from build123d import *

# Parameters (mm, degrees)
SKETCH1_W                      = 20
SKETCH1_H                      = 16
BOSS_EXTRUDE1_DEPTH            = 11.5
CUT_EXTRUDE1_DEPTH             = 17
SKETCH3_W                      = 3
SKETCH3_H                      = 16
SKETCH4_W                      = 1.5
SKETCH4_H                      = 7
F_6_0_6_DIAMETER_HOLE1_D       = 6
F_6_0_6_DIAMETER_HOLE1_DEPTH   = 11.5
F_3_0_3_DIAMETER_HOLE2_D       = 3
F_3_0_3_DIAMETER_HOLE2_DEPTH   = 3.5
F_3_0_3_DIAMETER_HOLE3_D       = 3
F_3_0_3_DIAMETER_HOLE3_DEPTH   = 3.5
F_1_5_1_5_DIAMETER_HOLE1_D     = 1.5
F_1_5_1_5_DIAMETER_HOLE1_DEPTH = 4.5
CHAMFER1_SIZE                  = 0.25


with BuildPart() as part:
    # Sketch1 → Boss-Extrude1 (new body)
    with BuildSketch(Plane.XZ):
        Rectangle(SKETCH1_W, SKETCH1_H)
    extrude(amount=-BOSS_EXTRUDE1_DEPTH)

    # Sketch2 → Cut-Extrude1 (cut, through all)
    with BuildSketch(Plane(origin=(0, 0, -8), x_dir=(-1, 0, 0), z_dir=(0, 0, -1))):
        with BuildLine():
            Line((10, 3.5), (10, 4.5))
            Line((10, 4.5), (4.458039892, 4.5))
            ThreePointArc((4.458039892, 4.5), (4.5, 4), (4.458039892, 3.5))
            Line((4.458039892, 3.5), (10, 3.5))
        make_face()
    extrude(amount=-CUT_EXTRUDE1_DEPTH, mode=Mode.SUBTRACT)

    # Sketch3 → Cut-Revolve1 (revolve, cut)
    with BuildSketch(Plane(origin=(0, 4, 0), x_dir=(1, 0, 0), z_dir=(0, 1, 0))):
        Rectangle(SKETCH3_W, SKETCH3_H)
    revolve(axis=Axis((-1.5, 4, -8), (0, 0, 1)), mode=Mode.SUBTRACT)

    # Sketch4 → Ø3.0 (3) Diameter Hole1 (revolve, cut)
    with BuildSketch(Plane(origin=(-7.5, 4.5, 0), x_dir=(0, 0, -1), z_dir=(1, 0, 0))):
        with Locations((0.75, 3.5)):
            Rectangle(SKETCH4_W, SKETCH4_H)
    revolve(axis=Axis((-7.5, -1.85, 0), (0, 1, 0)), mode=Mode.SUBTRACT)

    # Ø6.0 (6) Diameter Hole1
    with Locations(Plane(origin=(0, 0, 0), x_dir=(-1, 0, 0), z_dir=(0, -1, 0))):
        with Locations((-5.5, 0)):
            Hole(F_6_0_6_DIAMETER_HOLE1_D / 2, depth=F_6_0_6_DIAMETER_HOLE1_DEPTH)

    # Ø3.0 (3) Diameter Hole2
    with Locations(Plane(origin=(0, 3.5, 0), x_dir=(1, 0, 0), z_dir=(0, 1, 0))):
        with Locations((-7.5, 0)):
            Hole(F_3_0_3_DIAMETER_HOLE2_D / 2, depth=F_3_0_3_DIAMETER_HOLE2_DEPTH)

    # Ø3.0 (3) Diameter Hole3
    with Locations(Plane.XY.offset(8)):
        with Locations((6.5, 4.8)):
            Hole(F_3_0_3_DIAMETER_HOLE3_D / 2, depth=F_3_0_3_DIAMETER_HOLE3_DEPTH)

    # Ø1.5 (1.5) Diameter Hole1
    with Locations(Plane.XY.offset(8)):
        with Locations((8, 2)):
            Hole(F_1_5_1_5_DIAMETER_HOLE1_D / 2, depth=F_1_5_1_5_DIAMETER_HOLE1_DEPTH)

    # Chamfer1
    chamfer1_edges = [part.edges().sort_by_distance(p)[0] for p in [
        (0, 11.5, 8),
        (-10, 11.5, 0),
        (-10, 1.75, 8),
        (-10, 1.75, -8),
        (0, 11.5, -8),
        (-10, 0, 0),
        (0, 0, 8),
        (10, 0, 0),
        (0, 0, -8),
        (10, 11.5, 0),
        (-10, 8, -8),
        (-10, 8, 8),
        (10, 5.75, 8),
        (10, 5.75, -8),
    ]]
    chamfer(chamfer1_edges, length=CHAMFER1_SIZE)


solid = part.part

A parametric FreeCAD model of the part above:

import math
import FreeCAD as App
import Part
import Sketcher

V = App.Vector
Q = App.Units.Quantity


def edges_at(feature, points):
    """Names of the edges that pass closest to the given points."""
    edges = feature.Shape.Edges
    near = lambda p: min(range(len(edges)), key=lambda i: edges[i].distToShape(Part.Vertex(*p))[0])
    return sorted({f"Edge{near(p) + 1}" for p in points})


def add_polygon(sketch, points):
    """Adds a closed chain of lines whose ends are joined by coincident constraints."""
    first, n = sketch.GeometryCount, len(points)
    for a, b in zip(points, points[1:] + points[:1]):
        sketch.addGeometry(Part.LineSegment(App.Vector(*a, 0), App.Vector(*b, 0)), False)
    for i in range(n):
        sketch.addConstraint(Sketcher.Constraint("Coincident", first + i, 2, first + (i + 1) % n, 1))

doc = App.newDocument("Part")
body = doc.addObject("PartDesign::Body", "Body")

sketch1 = doc.addObject("Sketcher::SketchObject", "Sketch")
body.addObject(sketch1)
sketch1.AttachmentSupport = (doc.XZ_Plane, [""])
sketch1.MapMode = "FlatFace"
add_polygon(sketch1, [(-10, 8), (-10, -8), (10, -8), (10, 8)])
sketch1.addConstraint([
    Sketcher.Constraint("Vertical", 0),
    Sketcher.Constraint("Horizontal", 1),
    Sketcher.Constraint("Vertical", 2),
    Sketcher.Constraint("Horizontal", 3),
    Sketcher.Constraint("Symmetric", 0, 2, 2, 2, -1, 1),
    Sketcher.Constraint("DistanceX", 1, 1, 1, 2, Q("20 mm")),
    Sketcher.Constraint("DistanceY", 0, 2, 0, 1, Q("16 mm")),
])
pad1 = doc.addObject("PartDesign::Pad", "Pad")
body.addObject(pad1)
pad1.Profile = sketch1
pad1.Length = 11.5
pad1.Reversed = True

sketch2 = doc.addObject("Sketcher::SketchObject", "Sketch001")
body.addObject(sketch2)
sketch2.AttachmentSupport = (doc.XY_Plane, [""])
sketch2.MapMode = "FlatFace"
sketch2.AttachmentOffset = App.Placement(V(0, 0, -8), App.Rotation())
sketch2.addGeometry([
    Part.LineSegment(V(-10, 3.5, 0), V(-10, 4.5, 0)),
    Part.LineSegment(V(-10, 4.5, 0), V(-4.45804, 4.5, 0)),
    Part.ArcOfCircle(Part.Circle(V(-1.5, 4, 0), V(0, 0, 1), 3), math.radians(170.405932), math.radians(189.594068)),
    Part.LineSegment(V(-4.45804, 3.5, 0), V(-10, 3.5, 0)),
], False)
sketch2.addConstraint([
    Sketcher.Constraint("Coincident", 0, 2, 1, 1),
    Sketcher.Constraint("Coincident", 1, 2, 2, 1),
    Sketcher.Constraint("Coincident", 2, 2, 3, 1),
    Sketcher.Constraint("Coincident", 3, 2, 0, 1),
    Sketcher.Constraint("Vertical", 0),
    Sketcher.Constraint("Horizontal", 1),
    Sketcher.Constraint("Horizontal", 3),
    Sketcher.Constraint("Vertical", 1, 2, 2, 2),
    Sketcher.Constraint("Radius", 2, Q("3 mm")),
    Sketcher.Constraint("DistanceY", 0, 1, 0, 2, Q("1 mm")),
    Sketcher.Constraint("DistanceY", -1, 1, 2, 3, Q("4 mm")),
    Sketcher.Constraint("DistanceX", 0, 2, -1, 1, Q("10 mm")),
    Sketcher.Constraint("DistanceX", 2, 3, -1, 1, Q("1.5 mm")),
])
pocket1 = doc.addObject("PartDesign::Pocket", "Pocket")
body.addObject(pocket1)
pocket1.Profile = sketch2
pocket1.Type = "ThroughAll"
pocket1.Reversed = True

sketch3 = doc.addObject("Sketcher::SketchObject", "Sketch002")
body.addObject(sketch3)
sketch3.AttachmentSupport = (doc.XZ_Plane, [""])
sketch3.MapMode = "FlatFace"
sketch3.AttachmentOffset = App.Placement(V(0, 0, -4), App.Rotation())
add_polygon(sketch3, [(-1.5, -8), (-1.5, 8), (1.5, 8), (1.5, -8)])
sketch3.addGeometry(Part.LineSegment(V(-1.5, -8, 0), V(-1.5, 8, 0)), True)
sketch3.addConstraint([
    Sketcher.Constraint("Vertical", 0),
    Sketcher.Constraint("Horizontal", 1),
    Sketcher.Constraint("Vertical", 2),
    Sketcher.Constraint("Horizontal", 3),
    Sketcher.Constraint("Vertical", 4),
    Sketcher.Constraint("Coincident", 4, 1, 3, 2),
    Sketcher.Constraint("Symmetric", 0, 2, 2, 2, -1, 1),
    Sketcher.Constraint("Horizontal", 1, 2, 4, 2),
    Sketcher.Constraint("DistanceX", 1, 1, 1, 2, Q("3 mm")),
    Sketcher.Constraint("DistanceY", 0, 1, 0, 2, Q("16 mm")),
])
groove = doc.addObject("PartDesign::Groove", "Groove")
body.addObject(groove)
groove.Profile = sketch3
groove.ReferenceAxis = (sketch3, ["Axis0"])
groove.Angle = 360

sketch4 = doc.addObject("Sketcher::SketchObject", "Sketch003")
body.addObject(sketch4)
sketch4.AttachmentSupport = (doc.YZ_Plane, [""])
sketch4.MapMode = "FlatFace"
sketch4.AttachmentOffset = App.Placement(V(0, 0, -7.5), App.Rotation())
add_polygon(sketch4, [(11.5, 0), (4.5, 0), (4.5, -1.5), (11.5, -1.5)])
sketch4.addConstraint([
    Sketcher.Constraint("Horizontal", 0),
    Sketcher.Constraint("Vertical", 1),
    Sketcher.Constraint("Horizontal", 2),
    Sketcher.Constraint("Vertical", 3),
    Sketcher.Constraint("PointOnObject", 0, 2, -1),
    Sketcher.Constraint("DistanceX", 0, 2, 0, 1, Q("7 mm")),
    Sketcher.Constraint("DistanceY", 1, 2, 1, 1, Q("1.5 mm")),
    Sketcher.Constraint("DistanceX", -1, 1, 0, 2, Q("4.5 mm")),
])
groove2 = doc.addObject("PartDesign::Groove", "Groove001")
body.addObject(groove2)
groove2.Profile = sketch4
groove2.ReferenceAxis = (sketch4, ["H_Axis"])
groove2.Angle = 360

sketch5 = doc.addObject("Sketcher::SketchObject", "Sketch004")
body.addObject(sketch5)
sketch5.AttachmentSupport = (doc.XZ_Plane, [""])
sketch5.MapMode = "FlatFace"
sketch5.addGeometry(Part.Circle(V(5.5, 0, 0), V(0, 0, 1), 3), False)
sketch5.addConstraint([
    Sketcher.Constraint("PointOnObject", 0, 3, -1),
    Sketcher.Constraint("Diameter", 0, Q("6 mm")),
    Sketcher.Constraint("DistanceX", -1, 1, 0, 3, Q("5.5 mm")),
])
doc.recompute()
hole = doc.addObject("PartDesign::Hole", "Hole")
body.addObject(hole)
hole.Profile = sketch5
hole.ThreadType = "None"
hole.Diameter = 6
hole.DepthType = "Dimension"
hole.Depth = 11.5
hole.DrillPoint = "Flat"

sketch6 = doc.addObject("Sketcher::SketchObject", "Sketch005")
body.addObject(sketch6)
sketch6.AttachmentSupport = (doc.XZ_Plane, [""])
sketch6.MapMode = "FlatFace"
sketch6.AttachmentOffset = App.Placement(V(0, 0, -3.5), App.Rotation())
sketch6.addGeometry(Part.Circle(V(-7.5, 0, 0), V(0, 0, 1), 1.5), False)
sketch6.addConstraint([
    Sketcher.Constraint("PointOnObject", 0, 3, -1),
    Sketcher.Constraint("Diameter", 0, Q("3 mm")),
    Sketcher.Constraint("DistanceX", 0, 3, -1, 1, Q("7.5 mm")),
])
doc.recompute()
hole2 = doc.addObject("PartDesign::Hole", "Hole001")
body.addObject(hole2)
hole2.Profile = sketch6
hole2.ThreadType = "None"
hole2.Diameter = 3
hole2.DepthType = "Dimension"
hole2.Depth = 3.5
hole2.DrillPoint = "Flat"
hole2.Reversed = True

sketch7 = doc.addObject("Sketcher::SketchObject", "Sketch006")
body.addObject(sketch7)
sketch7.AttachmentSupport = (doc.XY_Plane, [""])
sketch7.MapMode = "FlatFace"
sketch7.AttachmentOffset = App.Placement(V(0, 0, 8), App.Rotation())
sketch7.addGeometry(Part.Circle(V(6.5, 4.8, 0), V(0, 0, 1), 1.5), False)
sketch7.addConstraint([
    Sketcher.Constraint("Diameter", 0, Q("3 mm")),
    Sketcher.Constraint("DistanceX", -1, 1, 0, 3, Q("6.5 mm")),
    Sketcher.Constraint("DistanceY", -1, 1, 0, 3, Q("4.8 mm")),
])
doc.recompute()
hole3 = doc.addObject("PartDesign::Hole", "Hole002")
body.addObject(hole3)
hole3.Profile = sketch7
hole3.ThreadType = "None"
hole3.Diameter = 3
hole3.DepthType = "Dimension"
hole3.Depth = 3.5
hole3.DrillPoint = "Flat"

sketch8 = doc.addObject("Sketcher::SketchObject", "Sketch007")
body.addObject(sketch8)
sketch8.AttachmentSupport = (doc.XY_Plane, [""])
sketch8.MapMode = "FlatFace"
sketch8.AttachmentOffset = App.Placement(V(0, 0, 8), App.Rotation())
sketch8.addGeometry(Part.Circle(V(8, 2, 0), V(0, 0, 1), 0.75), False)
sketch8.addConstraint([
    Sketcher.Constraint("Diameter", 0, Q("1.5 mm")),
    Sketcher.Constraint("DistanceX", -1, 1, 0, 3, Q("8 mm")),
    Sketcher.Constraint("DistanceY", -1, 1, 0, 3, Q("2 mm")),
])
doc.recompute()
hole4 = doc.addObject("PartDesign::Hole", "Hole003")
body.addObject(hole4)
hole4.Profile = sketch8
hole4.ThreadType = "None"
hole4.Diameter = 1.5
hole4.DepthType = "Dimension"
hole4.Depth = 4.5
hole4.DrillPoint = "Flat"
doc.recompute()

chamfer = doc.addObject("PartDesign::Chamfer", "Chamfer")
body.addObject(chamfer)
chamfer.Base = (hole4, edges_at(hole4, [
    (0, 11.5, 8),
    (-10, 11.5, 0),
    (-10, 1.75, 8),
    (-10, 1.75, -8),
    (0, 11.5, -8),
    (-10, 0, 0),
    (0, 0, 8),
    (10, 0, 0),
    (0, 0, -8),
    (10, 11.5, 0),
    (-10, 8, -8),
    (-10, 8, 8),
    (10, 5.75, 8),
    (10, 5.75, -8),
]))
chamfer.Size = 0.25

doc.recompute()
